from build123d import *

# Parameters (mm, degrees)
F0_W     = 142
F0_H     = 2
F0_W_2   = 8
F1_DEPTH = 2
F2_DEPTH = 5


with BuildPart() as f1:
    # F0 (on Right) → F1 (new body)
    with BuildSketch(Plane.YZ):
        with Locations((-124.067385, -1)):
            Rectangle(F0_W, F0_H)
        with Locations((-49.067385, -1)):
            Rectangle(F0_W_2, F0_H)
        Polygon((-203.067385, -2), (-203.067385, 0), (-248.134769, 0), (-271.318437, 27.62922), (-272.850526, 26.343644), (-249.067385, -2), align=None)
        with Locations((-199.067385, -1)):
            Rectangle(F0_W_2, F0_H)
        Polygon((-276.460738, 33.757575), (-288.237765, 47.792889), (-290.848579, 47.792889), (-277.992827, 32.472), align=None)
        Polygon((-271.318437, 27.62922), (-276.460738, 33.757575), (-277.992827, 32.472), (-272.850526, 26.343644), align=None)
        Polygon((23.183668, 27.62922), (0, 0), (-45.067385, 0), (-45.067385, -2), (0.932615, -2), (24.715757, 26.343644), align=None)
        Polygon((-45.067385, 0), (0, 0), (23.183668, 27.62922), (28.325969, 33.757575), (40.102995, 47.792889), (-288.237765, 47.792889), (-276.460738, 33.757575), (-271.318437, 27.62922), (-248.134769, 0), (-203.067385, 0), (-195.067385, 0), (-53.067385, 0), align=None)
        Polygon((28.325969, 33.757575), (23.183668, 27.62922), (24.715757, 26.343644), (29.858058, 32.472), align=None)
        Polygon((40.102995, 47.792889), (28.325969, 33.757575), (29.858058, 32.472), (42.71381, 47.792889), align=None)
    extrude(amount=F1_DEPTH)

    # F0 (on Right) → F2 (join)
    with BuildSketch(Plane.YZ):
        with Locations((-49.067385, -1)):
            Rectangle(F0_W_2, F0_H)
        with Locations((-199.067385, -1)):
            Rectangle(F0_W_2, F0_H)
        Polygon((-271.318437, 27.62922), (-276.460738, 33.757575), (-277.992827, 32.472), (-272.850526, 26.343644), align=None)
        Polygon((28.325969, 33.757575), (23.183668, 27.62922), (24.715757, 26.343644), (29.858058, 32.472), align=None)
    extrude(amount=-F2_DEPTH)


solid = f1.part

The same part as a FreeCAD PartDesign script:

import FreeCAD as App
import Part
import Sketcher

V = App.Vector
Q = App.Units.Quantity

doc = App.newDocument("Part")
body = doc.addObject("PartDesign::Body", "Body")

sketch1 = body.newObject("Sketcher::SketchObject", "Sketch")
sketch1.AttachmentSupport = (doc.getObject("YZ_Plane"), [""])
sketch1.MapMode = "FlatFace"
sketch1.addGeometry(Part.LineSegment(V(-291, 48, 0), V(-278, 32, 0)), False)
sketch1.addGeometry(Part.LineSegment(V(-278, 32, 0), V(-273, 26, 0)), False)
sketch1.addGeometry(Part.LineSegment(V(-273, 26, 0), V(-249, -2, 0)), False)
sketch1.addGeometry(Part.LineSegment(V(-249, -2, 0), V(1, -2, 0)), False)
sketch1.addGeometry(Part.LineSegment(V(1, -2, 0), V(25, 26, 0)), False)
sketch1.addGeometry(Part.LineSegment(V(25, 26, 0), V(30, 32, 0)), False)
sketch1.addGeometry(Part.LineSegment(V(30, 32, 0), V(43, 48, 0)), False)
sketch1.addGeometry(Part.LineSegment(V(43, 48, 0), V(-291, 48, 0)), False)
sketch1.addConstraint(Sketcher.Constraint("Coincident", 0, 2, 1, 1))
sketch1.addConstraint(Sketcher.Constraint("Coincident", 1, 2, 2, 1))
sketch1.addConstraint(Sketcher.Constraint("Coincident", 2, 2, 3, 1))
sketch1.addConstraint(Sketcher.Constraint("Coincident", 3, 2, 4, 1))
sketch1.addConstraint(Sketcher.Constraint("Coincident", 4, 2, 5, 1))
sketch1.addConstraint(Sketcher.Constraint("Coincident", 5, 2, 6, 1))
sketch1.addConstraint(Sketcher.Constraint("Coincident", 6, 2, 7, 1))
sketch1.addConstraint(Sketcher.Constraint("Coincident", 7, 2, 0, 1))
sketch1.addConstraint(Sketcher.Constraint("Horizontal", 3))
sketch1.addConstraint(Sketcher.Constraint("Horizontal", 7))
sketch1.addConstraint(Sketcher.Constraint("Parallel", 0, 1))
sketch1.addConstraint(Sketcher.Constraint("Parallel", 1, 2))
sketch1.addConstraint(Sketcher.Constraint("Parallel", 4, 5))
sketch1.addConstraint(Sketcher.Constraint("Parallel", 5, 6))
sketch1.addConstraint(Sketcher.Constraint("Horizontal", 1, 2, 4, 2))
sketch1.addConstraint(Sketcher.Constraint("Horizontal", 0, 2, 5, 2))
sketch1.addConstraint(Sketcher.Constraint("Equal", 2, 4))
sketch1.addConstraint(Sketcher.Constraint("DistanceX", 3, 1, 3, 2, Q("250 mm")))
sketch1.addConstraint(Sketcher.Constraint("Angle", 0, Q("-50.000001 deg")))
sketch1.addConstraint(Sketcher.Constraint("Distance", 0, Q("20 mm")))
sketch1.addConstraint(Sketcher.Constraint("Distance", 1, Q("8 mm")))
sketch1.addConstraint(Sketcher.Constraint("Distance", 2, Q("36.999999 mm")))
sketch1.addConstraint(Sketcher.Constraint("DistanceY", 2, 2, -1, 1, Q("2 mm")))
sketch1.addConstraint(Sketcher.Constraint("DistanceX", -1, 1, 5, 2, Q("29.858058 mm")))
pad1 = body.newObject("PartDesign::Pad", "Pad")
pad1.Profile = sketch1
pad1.Length = 2

sketch2 = body.newObject("Sketcher::SketchObject", "Sketch001")
sketch2.AttachmentSupport = (doc.getObject("YZ_Plane"), [""])
sketch2.MapMode = "FlatFace"
sketch2.addGeometry(Part.LineSegment(V(-53.1, 0, 0), V(-53.1, -2, 0)), False)
sketch2.addGeometry(Part.LineSegment(V(-53.1, -2, 0), V(-45.1, -2, 0)), False)
sketch2.addGeometry(Part.LineSegment(V(-45.1, -2, 0), V(-45.1, 0, 0)), False)
sketch2.addGeometry(Part.LineSegment(V(-45.1, 0, 0), V(-53.1, 0, 0)), False)
sketch2.addGeometry(Part.LineSegment(V(-203.1, 0, 0), V(-203.1, -2, 0)), False)
sketch2.addGeometry(Part.LineSegment(V(-203.1, -2, 0), V(-195.1, -2, 0)), False)
sketch2.addGeometry(Part.LineSegment(V(-195.1, -2, 0), V(-195.1, 0, 0)), False)
sketch2.addGeometry(Part.LineSegment(V(-195.1, 0, 0), V(-203.1, 0, 0)), False)
sketch2.addGeometry(Part.LineSegment(V(-271.3, 27.6, 0), V(-276.5, 33.8, 0)), False)
sketch2.addGeometry(Part.LineSegment(V(-276.5, 33.8, 0), V(-278, 32.5, 0)), False)
sketch2.addGeometry(Part.LineSegment(V(-278, 32.5, 0), V(-272.9, 26.3, 0)), False)
sketch2.addGeometry(Part.LineSegment(V(-272.9, 26.3, 0), V(-271.3, 27.6, 0)), False)
sketch2.addGeometry(Part.LineSegment(V(28.3, 33.8, 0), V(23.2, 27.6, 0)), False)
sketch2.addGeometry(Part.LineSegment(V(23.2, 27.6, 0), V(24.7, 26.3, 0)), False)
sketch2.addGeometry(Part.LineSegment(V(24.7, 26.3, 0), V(29.9, 32.5, 0)), False)
sketch2.addGeometry(Part.LineSegment(V(29.9, 32.5, 0), V(28.3, 33.8, 0)), False)
sketch2.addConstraint(Sketcher.Constraint("Coincident", 0, 2, 1, 1))
sketch2.addConstraint(Sketcher.Constraint("Coincident", 1, 2, 2, 1))
sketch2.addConstraint(Sketcher.Constraint("Coincident", 2, 2, 3, 1))
sketch2.addConstraint(Sketcher.Constraint("Coincident", 3, 2, 0, 1))
sketch2.addConstraint(Sketcher.Constraint("Coincident", 4, 2, 5, 1))
sketch2.addConstraint(Sketcher.Constraint("Coincident", 5, 2, 6, 1))
sketch2.addConstraint(Sketcher.Constraint("Coincident", 6, 2, 7, 1))
sketch2.addConstraint(Sketcher.Constraint("Coincident", 7, 2, 4, 1))
sketch2.addConstraint(Sketcher.Constraint("Coincident", 8, 2, 9, 1))
sketch2.addConstraint(Sketcher.Constraint("Coincident", 9, 2, 10, 1))
sketch2.addConstraint(Sketcher.Constraint("Coincident", 10, 2, 11, 1))
sketch2.addConstraint(Sketcher.Constraint("Coincident", 11, 2, 8, 1))
sketch2.addConstraint(Sketcher.Constraint("Coincident", 12, 2, 13, 1))
sketch2.addConstraint(Sketcher.Constraint("Coincident", 13, 2, 14, 1))
sketch2.addConstraint(Sketcher.Constraint("Coincident", 14, 2, 15, 1))
sketch2.addConstraint(Sketcher.Constraint("Coincident", 15, 2, 12, 1))
sketch2.addConstraint(Sketcher.Constraint("Vertical", 0))
sketch2.addConstraint(Sketcher.Constraint("Horizontal", 1))
sketch2.addConstraint(Sketcher.Constraint("Vertical", 2))
sketch2.addConstraint(Sketcher.Constraint("Horizontal", 3))
sketch2.addConstraint(Sketcher.Constraint("Vertical", 4))
sketch2.addConstraint(Sketcher.Constraint("Horizontal", 5))
sketch2.addConstraint(Sketcher.Constraint("Vertical", 6))
sketch2.addConstraint(Sketcher.Constraint("Horizontal", 7))
sketch2.addConstraint(Sketcher.Constraint("PointOnObject", 2, 2, -1))
sketch2.addConstraint(Sketcher.Constraint("PointOnObject", 6, 2, -1))
sketch2.addConstraint(Sketcher.Constraint("Perpendicular", 8, 9))
sketch2.addConstraint(Sketcher.Constraint("Perpendicular", 9, 10))
sketch2.addConstraint(Sketcher.Constraint("Perpendicular", 10, 11))
sketch2.addConstraint(Sketcher.Constraint("Perpendicular", 12, 13))
sketch2.addConstraint(Sketcher.Constraint("Perpendicular", 13, 14))
sketch2.addConstraint(Sketcher.Constraint("Perpendicular", 14, 15))
sketch2.addConstraint(Sketcher.Constraint("Horizontal", 1, 2, 4, 2))
sketch2.addConstraint(Sketcher.Constraint("Horizontal", 11, 2, 12, 2))
sketch2.addConstraint(Sketcher.Constraint("Horizontal", 10, 2, 13, 2))
sketch2.addConstraint(Sketcher.Constraint("Horizontal", 9, 2, 14, 2))
sketch2.addConstraint(Sketcher.Constraint("Equal", 3, 5))
sketch2.addConstraint(Sketcher.Constraint("Equal", 10, 12))
sketch2.addConstraint(Sketcher.Constraint("DistanceX", 1, 1, 1, 2, Q("8 mm")))
sketch2.addConstraint(Sketcher.Constraint("DistanceY", 0, 2, 0, 1, Q("2 mm")))
sketch2.addConstraint(Sketcher.Constraint("Angle", 8, Q("130.000003 deg")))
sketch2.addConstraint(Sketcher.Constraint("Distance", 8, Q("8 mm")))
sketch2.addConstraint(Sketcher.Constraint("Distance", 9, Q("2 mm")))
sketch2.addConstraint(Sketcher.Constraint("DistanceX", 4, 2, 0, 2, Q("150 mm")))
sketch2.addConstraint(Sketcher.Constraint("DistanceY", -1, 1, 9, 2, Q("32.472 mm")))
sketch2.addConstraint(Sketcher.Constraint("DistanceX", 8, 2, -1, 1, Q("276.460738 mm")))
sketch2.addConstraint(Sketcher.Constraint("DistanceX", -1, 1, 12, 2, Q("23.183668 mm")))
sketch2.addConstraint(Sketcher.Constraint("DistanceX", 9, 2, 7, 2, Q("74.925442 mm")))
pad2 = body.newObject("PartDesign::Pad", "Pad001")
pad2.Profile = sketch2
pad2.Length = 5
pad2.Reversed = True

doc.recompute()
